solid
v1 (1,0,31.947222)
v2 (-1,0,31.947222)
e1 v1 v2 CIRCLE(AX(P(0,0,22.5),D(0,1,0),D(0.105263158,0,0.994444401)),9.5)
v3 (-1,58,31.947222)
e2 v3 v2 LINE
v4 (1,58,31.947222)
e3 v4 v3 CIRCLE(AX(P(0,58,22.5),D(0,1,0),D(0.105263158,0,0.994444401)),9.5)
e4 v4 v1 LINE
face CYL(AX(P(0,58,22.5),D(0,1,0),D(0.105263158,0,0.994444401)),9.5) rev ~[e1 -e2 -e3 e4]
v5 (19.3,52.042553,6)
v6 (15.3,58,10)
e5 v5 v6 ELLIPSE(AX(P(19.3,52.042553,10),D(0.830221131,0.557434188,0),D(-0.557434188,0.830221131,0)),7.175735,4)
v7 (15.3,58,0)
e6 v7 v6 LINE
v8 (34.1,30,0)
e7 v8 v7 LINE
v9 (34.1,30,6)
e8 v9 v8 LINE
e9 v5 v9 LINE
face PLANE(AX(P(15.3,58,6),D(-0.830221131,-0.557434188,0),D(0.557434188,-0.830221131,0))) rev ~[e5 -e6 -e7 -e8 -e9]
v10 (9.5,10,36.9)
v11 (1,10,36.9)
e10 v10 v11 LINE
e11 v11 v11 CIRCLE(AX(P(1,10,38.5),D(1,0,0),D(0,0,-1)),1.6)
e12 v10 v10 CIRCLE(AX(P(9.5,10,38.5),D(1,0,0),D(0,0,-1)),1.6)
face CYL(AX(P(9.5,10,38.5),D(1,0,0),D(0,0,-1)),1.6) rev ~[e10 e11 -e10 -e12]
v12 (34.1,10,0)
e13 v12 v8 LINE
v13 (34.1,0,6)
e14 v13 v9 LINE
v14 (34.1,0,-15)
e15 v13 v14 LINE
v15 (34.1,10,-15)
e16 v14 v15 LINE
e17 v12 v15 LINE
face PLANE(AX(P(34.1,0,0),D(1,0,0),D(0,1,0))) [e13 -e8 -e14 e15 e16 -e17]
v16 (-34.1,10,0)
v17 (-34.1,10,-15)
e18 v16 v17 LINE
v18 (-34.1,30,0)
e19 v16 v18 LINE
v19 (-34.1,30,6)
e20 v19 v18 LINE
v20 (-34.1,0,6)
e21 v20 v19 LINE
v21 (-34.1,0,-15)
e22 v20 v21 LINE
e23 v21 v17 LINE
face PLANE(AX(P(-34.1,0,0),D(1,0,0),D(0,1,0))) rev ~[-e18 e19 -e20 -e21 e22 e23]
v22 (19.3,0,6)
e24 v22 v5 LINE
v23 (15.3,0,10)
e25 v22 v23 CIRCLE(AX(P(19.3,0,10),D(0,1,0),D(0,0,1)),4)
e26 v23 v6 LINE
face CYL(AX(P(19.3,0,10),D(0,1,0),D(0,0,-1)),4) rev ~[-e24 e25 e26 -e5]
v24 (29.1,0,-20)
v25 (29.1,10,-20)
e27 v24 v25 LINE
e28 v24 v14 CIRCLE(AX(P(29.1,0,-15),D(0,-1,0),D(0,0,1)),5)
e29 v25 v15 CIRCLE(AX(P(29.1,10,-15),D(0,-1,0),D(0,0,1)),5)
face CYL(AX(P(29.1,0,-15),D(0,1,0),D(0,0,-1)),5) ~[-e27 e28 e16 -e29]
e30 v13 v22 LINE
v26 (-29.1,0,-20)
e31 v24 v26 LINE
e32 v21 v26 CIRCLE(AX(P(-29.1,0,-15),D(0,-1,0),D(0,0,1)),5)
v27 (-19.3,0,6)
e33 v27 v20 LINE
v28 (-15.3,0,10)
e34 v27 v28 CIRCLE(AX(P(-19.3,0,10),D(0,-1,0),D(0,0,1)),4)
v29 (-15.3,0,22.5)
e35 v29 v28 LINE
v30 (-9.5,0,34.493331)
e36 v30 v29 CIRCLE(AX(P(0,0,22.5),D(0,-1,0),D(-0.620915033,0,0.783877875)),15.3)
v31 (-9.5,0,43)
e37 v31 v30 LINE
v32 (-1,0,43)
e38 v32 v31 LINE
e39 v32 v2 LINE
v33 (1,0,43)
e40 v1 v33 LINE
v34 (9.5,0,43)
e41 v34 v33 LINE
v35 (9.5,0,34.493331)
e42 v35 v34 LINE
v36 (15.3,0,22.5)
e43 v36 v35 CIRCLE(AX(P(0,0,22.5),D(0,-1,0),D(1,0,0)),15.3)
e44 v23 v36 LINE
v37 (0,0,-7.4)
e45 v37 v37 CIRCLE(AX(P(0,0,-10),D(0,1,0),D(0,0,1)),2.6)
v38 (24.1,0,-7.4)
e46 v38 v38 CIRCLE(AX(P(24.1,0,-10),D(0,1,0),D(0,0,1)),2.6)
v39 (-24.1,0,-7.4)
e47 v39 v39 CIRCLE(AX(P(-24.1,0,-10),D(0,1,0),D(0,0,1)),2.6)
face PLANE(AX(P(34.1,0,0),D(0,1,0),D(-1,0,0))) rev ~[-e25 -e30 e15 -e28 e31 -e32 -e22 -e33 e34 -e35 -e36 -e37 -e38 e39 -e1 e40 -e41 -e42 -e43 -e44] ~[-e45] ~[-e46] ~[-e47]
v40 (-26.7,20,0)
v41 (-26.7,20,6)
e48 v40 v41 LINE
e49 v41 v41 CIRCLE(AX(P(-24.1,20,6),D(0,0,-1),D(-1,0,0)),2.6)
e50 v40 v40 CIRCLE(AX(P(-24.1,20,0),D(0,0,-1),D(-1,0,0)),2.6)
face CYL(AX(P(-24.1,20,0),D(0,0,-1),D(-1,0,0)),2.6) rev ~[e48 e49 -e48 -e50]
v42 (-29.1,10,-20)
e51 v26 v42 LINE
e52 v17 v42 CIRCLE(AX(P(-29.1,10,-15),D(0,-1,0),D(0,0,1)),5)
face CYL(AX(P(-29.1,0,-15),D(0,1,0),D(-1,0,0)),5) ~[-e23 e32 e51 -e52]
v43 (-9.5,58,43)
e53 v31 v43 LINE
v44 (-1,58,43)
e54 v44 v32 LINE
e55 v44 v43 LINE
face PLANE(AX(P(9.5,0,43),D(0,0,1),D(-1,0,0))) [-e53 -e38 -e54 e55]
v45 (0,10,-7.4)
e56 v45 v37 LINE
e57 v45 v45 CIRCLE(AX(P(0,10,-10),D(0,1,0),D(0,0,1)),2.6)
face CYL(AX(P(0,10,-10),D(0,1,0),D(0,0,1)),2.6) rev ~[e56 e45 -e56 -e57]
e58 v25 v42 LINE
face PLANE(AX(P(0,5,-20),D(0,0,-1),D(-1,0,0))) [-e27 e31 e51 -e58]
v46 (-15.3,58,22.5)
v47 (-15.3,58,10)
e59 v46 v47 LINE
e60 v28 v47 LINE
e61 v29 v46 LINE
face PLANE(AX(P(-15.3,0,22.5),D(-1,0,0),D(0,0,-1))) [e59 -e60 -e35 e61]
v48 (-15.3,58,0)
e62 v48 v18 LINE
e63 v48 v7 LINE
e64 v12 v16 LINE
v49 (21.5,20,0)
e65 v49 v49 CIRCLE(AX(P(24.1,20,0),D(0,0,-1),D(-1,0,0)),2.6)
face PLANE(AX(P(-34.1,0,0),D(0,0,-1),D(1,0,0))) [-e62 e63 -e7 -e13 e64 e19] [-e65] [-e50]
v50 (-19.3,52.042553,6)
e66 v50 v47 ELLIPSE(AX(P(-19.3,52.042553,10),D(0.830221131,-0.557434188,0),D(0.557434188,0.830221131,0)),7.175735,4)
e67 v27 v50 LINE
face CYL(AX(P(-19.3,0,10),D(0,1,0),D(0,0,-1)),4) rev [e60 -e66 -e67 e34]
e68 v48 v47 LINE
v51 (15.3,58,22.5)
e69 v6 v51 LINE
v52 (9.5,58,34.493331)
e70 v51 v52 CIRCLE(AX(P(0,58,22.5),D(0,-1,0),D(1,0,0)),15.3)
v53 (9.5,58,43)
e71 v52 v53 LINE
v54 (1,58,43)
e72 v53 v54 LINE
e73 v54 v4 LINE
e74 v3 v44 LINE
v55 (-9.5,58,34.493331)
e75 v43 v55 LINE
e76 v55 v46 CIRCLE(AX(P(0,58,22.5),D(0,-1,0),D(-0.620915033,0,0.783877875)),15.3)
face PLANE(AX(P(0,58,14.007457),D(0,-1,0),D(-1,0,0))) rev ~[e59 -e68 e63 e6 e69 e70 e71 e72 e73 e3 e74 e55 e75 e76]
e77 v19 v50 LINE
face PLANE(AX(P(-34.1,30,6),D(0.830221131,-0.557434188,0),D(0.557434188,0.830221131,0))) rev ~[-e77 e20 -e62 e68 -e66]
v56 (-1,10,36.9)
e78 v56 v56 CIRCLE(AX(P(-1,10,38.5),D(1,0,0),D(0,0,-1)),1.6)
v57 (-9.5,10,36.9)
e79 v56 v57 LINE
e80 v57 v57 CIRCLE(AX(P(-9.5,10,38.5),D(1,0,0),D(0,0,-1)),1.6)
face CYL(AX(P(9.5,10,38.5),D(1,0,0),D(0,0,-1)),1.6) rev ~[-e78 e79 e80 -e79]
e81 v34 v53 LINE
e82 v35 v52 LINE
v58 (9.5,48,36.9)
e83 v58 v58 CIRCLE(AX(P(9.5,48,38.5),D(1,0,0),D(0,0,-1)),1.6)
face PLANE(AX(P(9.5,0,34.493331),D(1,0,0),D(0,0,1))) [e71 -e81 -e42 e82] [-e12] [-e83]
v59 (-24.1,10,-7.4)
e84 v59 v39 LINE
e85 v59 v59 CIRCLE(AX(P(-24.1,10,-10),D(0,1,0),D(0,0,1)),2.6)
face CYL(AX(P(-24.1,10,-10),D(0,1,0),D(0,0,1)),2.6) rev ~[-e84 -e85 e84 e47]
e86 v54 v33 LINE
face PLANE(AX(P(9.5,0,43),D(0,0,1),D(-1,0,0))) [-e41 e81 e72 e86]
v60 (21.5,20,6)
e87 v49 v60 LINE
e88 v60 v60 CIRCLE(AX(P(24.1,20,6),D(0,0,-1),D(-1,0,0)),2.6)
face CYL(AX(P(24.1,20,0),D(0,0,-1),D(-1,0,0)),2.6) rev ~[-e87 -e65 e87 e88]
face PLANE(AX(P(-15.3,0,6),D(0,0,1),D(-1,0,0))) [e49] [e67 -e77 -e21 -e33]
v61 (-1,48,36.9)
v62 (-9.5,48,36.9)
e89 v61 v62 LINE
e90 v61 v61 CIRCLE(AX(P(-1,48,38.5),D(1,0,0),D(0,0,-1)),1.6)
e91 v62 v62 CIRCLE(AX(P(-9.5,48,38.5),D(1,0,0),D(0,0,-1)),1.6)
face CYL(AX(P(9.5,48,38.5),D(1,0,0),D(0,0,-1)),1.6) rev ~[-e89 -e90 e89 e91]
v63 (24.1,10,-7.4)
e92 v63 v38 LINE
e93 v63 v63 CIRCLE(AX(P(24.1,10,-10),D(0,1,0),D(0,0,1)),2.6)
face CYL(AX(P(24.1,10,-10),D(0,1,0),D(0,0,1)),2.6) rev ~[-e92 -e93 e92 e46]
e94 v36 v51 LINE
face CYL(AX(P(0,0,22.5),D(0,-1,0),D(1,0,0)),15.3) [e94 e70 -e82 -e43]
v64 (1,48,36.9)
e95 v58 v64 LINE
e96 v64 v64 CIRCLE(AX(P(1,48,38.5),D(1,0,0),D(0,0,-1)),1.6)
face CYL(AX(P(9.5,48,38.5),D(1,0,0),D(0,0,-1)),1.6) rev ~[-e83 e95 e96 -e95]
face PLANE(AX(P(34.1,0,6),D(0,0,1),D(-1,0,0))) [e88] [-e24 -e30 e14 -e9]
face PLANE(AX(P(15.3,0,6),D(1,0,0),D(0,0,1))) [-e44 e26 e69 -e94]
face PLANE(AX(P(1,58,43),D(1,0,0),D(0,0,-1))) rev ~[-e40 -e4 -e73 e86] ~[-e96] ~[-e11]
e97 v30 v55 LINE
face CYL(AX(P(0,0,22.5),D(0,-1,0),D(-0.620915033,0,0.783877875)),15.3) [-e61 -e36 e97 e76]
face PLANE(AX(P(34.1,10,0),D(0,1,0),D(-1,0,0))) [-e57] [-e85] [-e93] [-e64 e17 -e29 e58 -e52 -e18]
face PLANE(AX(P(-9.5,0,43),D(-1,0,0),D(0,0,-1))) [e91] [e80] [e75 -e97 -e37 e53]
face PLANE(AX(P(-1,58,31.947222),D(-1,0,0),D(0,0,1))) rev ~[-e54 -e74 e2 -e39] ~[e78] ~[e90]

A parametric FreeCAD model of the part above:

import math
import FreeCAD as App
import Part
import Sketcher

V = App.Vector
Q = App.Units.Quantity


def edges_at(feature, points):
    """Names of the edges that pass closest to the given points."""
    edges = feature.Shape.Edges
    near = lambda p: min(range(len(edges)), key=lambda i: edges[i].distToShape(Part.Vertex(*p))[0])
    return sorted({f"Edge{near(p) + 1}" for p in points})

doc = App.newDocument("Part")
body = doc.addObject("PartDesign::Body", "Body")

# Sketch on XZ plane
sketch1 = body.newObject("Sketcher::SketchObject", "Sketch")
sketch1.AttachmentSupport = (doc.getObject("XZ_Plane"), [""])
sketch1.MapMode = "FlatFace"
sketch1.addGeometry(Part.LineSegment(V(34.1, 6, 0), V(34.1, 0, 0)), False)
sketch1.addGeometry(Part.LineSegment(V(34.1, 0, 0), V(-34.1, 0, 0)), False)
sketch1.addGeometry(Part.LineSegment(V(-34.1, 0, 0), V(-34.1, 6, 0)), False)
sketch1.addGeometry(Part.LineSegment(V(-34.1, 6, 0), V(-15.3, 6, 0)), False)
sketch1.addGeometry(Part.LineSegment(V(-15.3, 6, 0), V(-15.3, 22.5, 0)), False)
sketch1.addGeometry(Part.ArcOfCircle(Part.Circle(V(0, 22.5, 0), V(0, 0, 1), 15.3), math.radians(128.382986), math.radians(180)), False)
sketch1.addGeometry(Part.LineSegment(V(-9.5, 34.493331, 0), V(-9.5, 43, 0)), False)
sketch1.addGeometry(Part.LineSegment(V(-9.5, 43, 0), V(9.5, 43, 0)), False)
sketch1.addGeometry(Part.LineSegment(V(9.5, 43, 0), V(9.5, 34.493331, 0)), False)
sketch1.addGeometry(Part.ArcOfCircle(Part.Circle(V(0, 22.5, 0), V(0, 0, 1), 15.3), math.radians(0), math.radians(51.617014)), False)
sketch1.addGeometry(Part.LineSegment(V(15.3, 22.5, 0), V(15.3, 6, 0)), False)
sketch1.addGeometry(Part.LineSegment(V(15.3, 6, 0), V(34.1, 6, 0)), False)
sketch1.addConstraint(Sketcher.Constraint("Coincident", 0, 2, 1, 1))
sketch1.addConstraint(Sketcher.Constraint("Coincident", 1, 2, 2, 1))
sketch1.addConstraint(Sketcher.Constraint("Coincident", 2, 2, 3, 1))
sketch1.addConstraint(Sketcher.Constraint("Coincident", 3, 2, 4, 1))
sketch1.addConstraint(Sketcher.Constraint("Tangent", 4, 2, 5, 2))
sketch1.addConstraint(Sketcher.Constraint("Coincident", 5, 1, 6, 1))
sketch1.addConstraint(Sketcher.Constraint("Coincident", 6, 2, 7, 1))
sketch1.addConstraint(Sketcher.Constraint("Coincident", 7, 2, 8, 1))
sketch1.addConstraint(Sketcher.Constraint("Coincident", 8, 2, 9, 2))
sketch1.addConstraint(Sketcher.Constraint("Tangent", 9, 1, 10, 1))
sketch1.addConstraint(Sketcher.Constraint("Coincident", 10, 2, 11, 1))
sketch1.addConstraint(Sketcher.Constraint("Coincident", 11, 2, 0, 1))
sketch1.addConstraint(Sketcher.Constraint("Vertical", 0))
sketch1.addConstraint(Sketcher.Constraint("Horizontal", 1))
sketch1.addConstraint(Sketcher.Constraint("Vertical", 2))
sketch1.addConstraint(Sketcher.Constraint("Horizontal", 3))
sketch1.addConstraint(Sketcher.Constraint("Vertical", 4))
sketch1.addConstraint(Sketcher.Constraint("Vertical", 6))
sketch1.addConstraint(Sketcher.Constraint("Horizontal", 7))
sketch1.addConstraint(Sketcher.Constraint("Vertical", 8))
sketch1.addConstraint(Sketcher.Constraint("Vertical", 10))
sketch1.addConstraint(Sketcher.Constraint("Horizontal", 11))
sketch1.addConstraint(Sketcher.Constraint("Coincident", 9, 3, 5, 3))
sketch1.addConstraint(Sketcher.Constraint("Equal", 5, 9))
sketch1.addConstraint(Sketcher.Constraint("Symmetric", 0, 2, 1, 2, -1, 1))
sketch1.addConstraint(Sketcher.Constraint("Symmetric", 5, 1, 8, 2, -2))
sketch1.addConstraint(Sketcher.Constraint("Horizontal", 3, 2, 10, 2))
sketch1.addConstraint(Sketcher.Constraint("Radius", 5, Q("15.3 mm")))
sketch1.addConstraint(Sketcher.Constraint("DistanceX", 7, 1, 7, 2, Q("19 mm")))
sketch1.addConstraint(Sketcher.Constraint("DistanceY", 0, 2, 0, 1, Q("6 mm")))
sketch1.addConstraint(Sketcher.Constraint("DistanceX", 1, 2, 1, 1, Q("68.2 mm")))
sketch1.addConstraint(Sketcher.Constraint("DistanceY", 4, 1, 4, 2, Q("16.5 mm")))
sketch1.addConstraint(Sketcher.Constraint("DistanceY", -1, 1, 6, 2, Q("43 mm")))
pad1 = body.newObject("PartDesign::Pad", "Pad")
pad1.Profile = sketch1
pad1.Length = 58
pad1.Reversed = True

# Sketch on XZ plane
sketch2 = body.newObject("Sketcher::SketchObject", "Sketch001")
sketch2.AttachmentSupport = (doc.getObject("XZ_Plane"), [""])
sketch2.MapMode = "FlatFace"
sketch2.AttachmentOffset = App.Placement(V(0, 0, -58), App.Rotation())
sketch2.addGeometry(Part.LineSegment(V(-1, 31.947222, 0), V(-1, 43, 0)), False)
sketch2.addGeometry(Part.LineSegment(V(-1, 43, 0), V(1, 43, 0)), False)
sketch2.addGeometry(Part.LineSegment(V(1, 43, 0), V(1, 31.947222, 0)), False)
sketch2.addGeometry(Part.ArcOfCircle(Part.Circle(V(0, 22.5, 0), V(0, 0, 1), 9.5), math.radians(96.042328), math.radians(443.957672)), False)
sketch2.addConstraint(Sketcher.Constraint("Coincident", 0, 2, 1, 1))
sketch2.addConstraint(Sketcher.Constraint("Coincident", 1, 2, 2, 1))
sketch2.addConstraint(Sketcher.Constraint("Coincident", 2, 2, 3, 2))
sketch2.addConstraint(Sketcher.Constraint("Coincident", 3, 1, 0, 1))
sketch2.addConstraint(Sketcher.Constraint("Vertical", 0))
sketch2.addConstraint(Sketcher.Constraint("Horizontal", 1))
sketch2.addConstraint(Sketcher.Constraint("Vertical", 2))
sketch2.addConstraint(Sketcher.Constraint("Symmetric", 2, 2, 3, 1, -2))
sketch2.addConstraint(Sketcher.Constraint("Radius", 3, Q("9.5 mm")))
sketch2.addConstraint(Sketcher.Constraint("DistanceX", 1, 1, 1, 2, Q("2 mm")))
sketch2.addConstraint(Sketcher.Constraint("DistanceY", -1, 1, 0, 2, Q("43 mm")))
sketch2.addConstraint(Sketcher.Constraint("DistanceY", -1, 1, 3, 3, Q("22.5 mm")))
pocket1 = body.newObject("PartDesign::Pocket", "Pocket")
pocket1.Profile = sketch2
pocket1.Type = "ThroughAll"
pocket1.Reversed = True

# Sketch on XY plane
sketch3 = body.newObject("Sketcher::SketchObject", "Sketch002")
sketch3.AttachmentSupport = (doc.getObject("XY_Plane"), [""])
sketch3.MapMode = "FlatFace"
sketch3.addGeometry(Part.LineSegment(V(34.1, 10, 0), V(34.1, 0, 0)), False)
sketch3.addGeometry(Part.LineSegment(V(34.1, 0, 0), V(-34.1, 0, 0)), False)
sketch3.addGeometry(Part.LineSegment(V(-34.1, 0, 0), V(-34.1, 10, 0)), False)
sketch3.addGeometry(Part.LineSegment(V(-34.1, 10, 0), V(34.1, 10, 0)), False)
sketch3.addConstraint(Sketcher.Constraint("Coincident", 0, 2, 1, 1))
sketch3.addConstraint(Sketcher.Constraint("Coincident", 1, 2, 2, 1))
sketch3.addConstraint(Sketcher.Constraint("Coincident", 2, 2, 3, 1))
sketch3.addConstraint(Sketcher.Constraint("Coincident", 3, 2, 0, 1))
sketch3.addConstraint(Sketcher.Constraint("Vertical", 0))
sketch3.addConstraint(Sketcher.Constraint("Horizontal", 1))
sketch3.addConstraint(Sketcher.Constraint("Vertical", 2))
sketch3.addConstraint(Sketcher.Constraint("Horizontal", 3))
sketch3.addConstraint(Sketcher.Constraint("Symmetric", 0, 2, 1, 2, -1, 1))
sketch3.addConstraint(Sketcher.Constraint("DistanceY", 0, 2, 0, 1, Q("10 mm")))
sketch3.addConstraint(Sketcher.Constraint("DistanceX", 1, 2, 1, 1, Q("68.2 mm")))
pad2 = body.newObject("PartDesign::Pad", "Pad001")
pad2.Profile = sketch3
pad2.Length = 20
pad2.Reversed = True

# Sketch on YZ plane
sketch4 = body.newObject("Sketcher::SketchObject", "Sketch003")
sketch4.AttachmentSupport = (doc.getObject("YZ_Plane"), [""])
sketch4.MapMode = "FlatFace"
sketch4.AttachmentOffset = App.Placement(V(0, 0, 9.5), App.Rotation())
sketch4.addGeometry(Part.Circle(V(48, 38.5, 0), V(0, 0, 1), 1.6), False)
sketch4.addGeometry(Part.Circle(V(10, 38.5, 0), V(0, 0, 1), 1.6), False)
sketch4.addConstraint(Sketcher.Constraint("Equal", 0, 1))
sketch4.addConstraint(Sketcher.Constraint("Horizontal", 0, 3, 1, 3))
sketch4.addConstraint(Sketcher.Constraint("Diameter", 0, Q("3.2 mm")))
sketch4.addConstraint(Sketcher.Constraint("DistanceX", -1, 1, 0, 3, Q("48 mm")))
sketch4.addConstraint(Sketcher.Constraint("DistanceX", -1, 1, 1, 3, Q("10 mm")))
sketch4.addConstraint(Sketcher.Constraint("DistanceY", -1, 1, 0, 3, Q("38.5 mm")))
pocket2 = body.newObject("PartDesign::Pocket", "Pocket001")
pocket2.Profile = sketch4
pocket2.Type = "ThroughAll"

# Sketch on XY plane
sketch5 = body.newObject("Sketcher::SketchObject", "Sketch004")
sketch5.AttachmentSupport = (doc.getObject("XY_Plane"), [""])
sketch5.MapMode = "FlatFace"
sketch5.addGeometry(Part.Circle(V(24.1, 20, 0), V(0, 0, 1), 2.6), False)
sketch5.addGeometry(Part.Circle(V(-24.1, 20, 0), V(0, 0, 1), 2.6), False)
sketch5.addConstraint(Sketcher.Constraint("Equal", 0, 1))
sketch5.addConstraint(Sketcher.Constraint("Symmetric", 0, 3, 1, 3, -2))
sketch5.addConstraint(Sketcher.Constraint("Diameter", 0, Q("5.2 mm")))
sketch5.addConstraint(Sketcher.Constraint("DistanceY", -1, 1, 0, 3, Q("20 mm")))
sketch5.addConstraint(Sketcher.Constraint("DistanceX", -1, 1, 0, 3, Q("24.1 mm")))
pocket3 = body.newObject("PartDesign::Pocket", "Pocket002")
pocket3.Profile = sketch5
pocket3.Type = "ThroughAll"
pocket3.Reversed = True

# Sketch on XZ plane
sketch6 = body.newObject("Sketcher::SketchObject", "Sketch005")
sketch6.AttachmentSupport = (doc.getObject("XZ_Plane"), [""])
sketch6.MapMode = "FlatFace"
sketch6.AttachmentOffset = App.Placement(V(0, 0, -10), App.Rotation())
sketch6.addGeometry(Part.Circle(V(24.1, -10, 0), V(0, 0, 1), 2.6), False)
sketch6.addGeometry(Part.Circle(V(0, -10, 0), V(0, 0, 1), 2.6), False)
sketch6.addGeometry(Part.Circle(V(-24.1, -10, 0), V(0, 0, 1), 2.6), False)
sketch6.addConstraint(Sketcher.Constraint("Equal", 0, 1))
sketch6.addConstraint(Sketcher.Constraint("Equal", 1, 2))
sketch6.addConstraint(Sketcher.Constraint("Symmetric", 0, 3, 2, 3, -2))
sketch6.addConstraint(Sketcher.Constraint("PointOnObject", 1, 3, -2))
sketch6.addConstraint(Sketcher.Constraint("Horizontal", 0, 3, 1, 3))
sketch6.addConstraint(Sketcher.Constraint("Diameter", 0, Q("5.2 mm")))
sketch6.addConstraint(Sketcher.Constraint("DistanceY", 0, 3, -1, 1, Q("10 mm")))
sketch6.addConstraint(Sketcher.Constraint("DistanceX", -1, 1, 0, 3, Q("24.1 mm")))
pocket4 = body.newObject("PartDesign::Pocket", "Pocket003")
pocket4.Profile = sketch6
pocket4.Type = "ThroughAll"
pocket4.Reversed = True

# Sketch on XY plane
sketch7 = body.newObject("Sketcher::SketchObject", "Sketch006")
sketch7.AttachmentSupport = (doc.getObject("XY_Plane"), [""])
sketch7.MapMode = "FlatFace"
sketch7.AttachmentOffset = App.Placement(V(0, 0, 6), App.Rotation())
sketch7.addGeometry(Part.LineSegment(V(15.3, 58, 0), V(34.1, 30, 0)), False)
sketch7.addGeometry(Part.LineSegment(V(34.1, 30, 0), V(34.1, 58, 0)), False)
sketch7.addGeometry(Part.LineSegment(V(34.1, 58, 0), V(15.3, 58, 0)), False)
sketch7.addGeometry(Part.LineSegment(V(-15.3, 58, 0), V(-34.1, 58, 0)), False)
sketch7.addGeometry(Part.LineSegment(V(-34.1, 58, 0), V(-34.1, 30, 0)), False)
sketch7.addGeometry(Part.LineSegment(V(-34.1, 30, 0), V(-15.3, 58, 0)), False)
sketch7.addConstraint(Sketcher.Constraint("Coincident", 0, 2, 1, 1))
sketch7.addConstraint(Sketcher.Constraint("Coincident", 1, 2, 2, 1))
sketch7.addConstraint(Sketcher.Constraint("Coincident", 2, 2, 0, 1))
sketch7.addConstraint(Sketcher.Constraint("Coincident", 3, 2, 4, 1))
sketch7.addConstraint(Sketcher.Constraint("Coincident", 4, 2, 5, 1))
sketch7.addConstraint(Sketcher.Constraint("Coincident", 5, 2, 3, 1))
sketch7.addConstraint(Sketcher.Constraint("Vertical", 1))
sketch7.addConstraint(Sketcher.Constraint("Horizontal", 2))
sketch7.addConstraint(Sketcher.Constraint("Horizontal", 3))
sketch7.addConstraint(Sketcher.Constraint("Vertical", 4))
sketch7.addConstraint(Sketcher.Constraint("Symmetric", 1, 2, 3, 2, -2))
sketch7.addConstraint(Sketcher.Constraint("Horizontal", 0, 2, 4, 2))
sketch7.addConstraint(Sketcher.Constraint("Equal", 2, 3))
sketch7.addConstraint(Sketcher.Constraint("DistanceY", 1, 1, 1, 2, Q("28 mm")))
sketch7.addConstraint(Sketcher.Constraint("DistanceX", 2, 2, 2, 1, Q("18.8 mm")))
sketch7.addConstraint(Sketcher.Constraint("DistanceY", -1, 1, 0, 2, Q("30 mm")))
sketch7.addConstraint(Sketcher.Constraint("DistanceX", -1, 1, 0, 2, Q("34.1 mm")))
pocket5 = body.newObject("PartDesign::Pocket", "Pocket004")
pocket5.Profile = sketch7
pocket5.Type = "ThroughAll"
doc.recompute()

fillet = body.newObject("PartDesign::Fillet", "Fillet")
fillet.Base = (pocket5, edges_at(pocket5, [(15.3, 29, 6), (-15.3, 29, 6)]))
fillet.Radius = 4
doc.recompute()

fillet2 = body.newObject("PartDesign::Fillet", "Fillet001")
fillet2.Base = (fillet, edges_at(fillet, [(-34.1, 5, -20), (34.1, 5, -20)]))
fillet2.Radius = 5

doc.recompute()
